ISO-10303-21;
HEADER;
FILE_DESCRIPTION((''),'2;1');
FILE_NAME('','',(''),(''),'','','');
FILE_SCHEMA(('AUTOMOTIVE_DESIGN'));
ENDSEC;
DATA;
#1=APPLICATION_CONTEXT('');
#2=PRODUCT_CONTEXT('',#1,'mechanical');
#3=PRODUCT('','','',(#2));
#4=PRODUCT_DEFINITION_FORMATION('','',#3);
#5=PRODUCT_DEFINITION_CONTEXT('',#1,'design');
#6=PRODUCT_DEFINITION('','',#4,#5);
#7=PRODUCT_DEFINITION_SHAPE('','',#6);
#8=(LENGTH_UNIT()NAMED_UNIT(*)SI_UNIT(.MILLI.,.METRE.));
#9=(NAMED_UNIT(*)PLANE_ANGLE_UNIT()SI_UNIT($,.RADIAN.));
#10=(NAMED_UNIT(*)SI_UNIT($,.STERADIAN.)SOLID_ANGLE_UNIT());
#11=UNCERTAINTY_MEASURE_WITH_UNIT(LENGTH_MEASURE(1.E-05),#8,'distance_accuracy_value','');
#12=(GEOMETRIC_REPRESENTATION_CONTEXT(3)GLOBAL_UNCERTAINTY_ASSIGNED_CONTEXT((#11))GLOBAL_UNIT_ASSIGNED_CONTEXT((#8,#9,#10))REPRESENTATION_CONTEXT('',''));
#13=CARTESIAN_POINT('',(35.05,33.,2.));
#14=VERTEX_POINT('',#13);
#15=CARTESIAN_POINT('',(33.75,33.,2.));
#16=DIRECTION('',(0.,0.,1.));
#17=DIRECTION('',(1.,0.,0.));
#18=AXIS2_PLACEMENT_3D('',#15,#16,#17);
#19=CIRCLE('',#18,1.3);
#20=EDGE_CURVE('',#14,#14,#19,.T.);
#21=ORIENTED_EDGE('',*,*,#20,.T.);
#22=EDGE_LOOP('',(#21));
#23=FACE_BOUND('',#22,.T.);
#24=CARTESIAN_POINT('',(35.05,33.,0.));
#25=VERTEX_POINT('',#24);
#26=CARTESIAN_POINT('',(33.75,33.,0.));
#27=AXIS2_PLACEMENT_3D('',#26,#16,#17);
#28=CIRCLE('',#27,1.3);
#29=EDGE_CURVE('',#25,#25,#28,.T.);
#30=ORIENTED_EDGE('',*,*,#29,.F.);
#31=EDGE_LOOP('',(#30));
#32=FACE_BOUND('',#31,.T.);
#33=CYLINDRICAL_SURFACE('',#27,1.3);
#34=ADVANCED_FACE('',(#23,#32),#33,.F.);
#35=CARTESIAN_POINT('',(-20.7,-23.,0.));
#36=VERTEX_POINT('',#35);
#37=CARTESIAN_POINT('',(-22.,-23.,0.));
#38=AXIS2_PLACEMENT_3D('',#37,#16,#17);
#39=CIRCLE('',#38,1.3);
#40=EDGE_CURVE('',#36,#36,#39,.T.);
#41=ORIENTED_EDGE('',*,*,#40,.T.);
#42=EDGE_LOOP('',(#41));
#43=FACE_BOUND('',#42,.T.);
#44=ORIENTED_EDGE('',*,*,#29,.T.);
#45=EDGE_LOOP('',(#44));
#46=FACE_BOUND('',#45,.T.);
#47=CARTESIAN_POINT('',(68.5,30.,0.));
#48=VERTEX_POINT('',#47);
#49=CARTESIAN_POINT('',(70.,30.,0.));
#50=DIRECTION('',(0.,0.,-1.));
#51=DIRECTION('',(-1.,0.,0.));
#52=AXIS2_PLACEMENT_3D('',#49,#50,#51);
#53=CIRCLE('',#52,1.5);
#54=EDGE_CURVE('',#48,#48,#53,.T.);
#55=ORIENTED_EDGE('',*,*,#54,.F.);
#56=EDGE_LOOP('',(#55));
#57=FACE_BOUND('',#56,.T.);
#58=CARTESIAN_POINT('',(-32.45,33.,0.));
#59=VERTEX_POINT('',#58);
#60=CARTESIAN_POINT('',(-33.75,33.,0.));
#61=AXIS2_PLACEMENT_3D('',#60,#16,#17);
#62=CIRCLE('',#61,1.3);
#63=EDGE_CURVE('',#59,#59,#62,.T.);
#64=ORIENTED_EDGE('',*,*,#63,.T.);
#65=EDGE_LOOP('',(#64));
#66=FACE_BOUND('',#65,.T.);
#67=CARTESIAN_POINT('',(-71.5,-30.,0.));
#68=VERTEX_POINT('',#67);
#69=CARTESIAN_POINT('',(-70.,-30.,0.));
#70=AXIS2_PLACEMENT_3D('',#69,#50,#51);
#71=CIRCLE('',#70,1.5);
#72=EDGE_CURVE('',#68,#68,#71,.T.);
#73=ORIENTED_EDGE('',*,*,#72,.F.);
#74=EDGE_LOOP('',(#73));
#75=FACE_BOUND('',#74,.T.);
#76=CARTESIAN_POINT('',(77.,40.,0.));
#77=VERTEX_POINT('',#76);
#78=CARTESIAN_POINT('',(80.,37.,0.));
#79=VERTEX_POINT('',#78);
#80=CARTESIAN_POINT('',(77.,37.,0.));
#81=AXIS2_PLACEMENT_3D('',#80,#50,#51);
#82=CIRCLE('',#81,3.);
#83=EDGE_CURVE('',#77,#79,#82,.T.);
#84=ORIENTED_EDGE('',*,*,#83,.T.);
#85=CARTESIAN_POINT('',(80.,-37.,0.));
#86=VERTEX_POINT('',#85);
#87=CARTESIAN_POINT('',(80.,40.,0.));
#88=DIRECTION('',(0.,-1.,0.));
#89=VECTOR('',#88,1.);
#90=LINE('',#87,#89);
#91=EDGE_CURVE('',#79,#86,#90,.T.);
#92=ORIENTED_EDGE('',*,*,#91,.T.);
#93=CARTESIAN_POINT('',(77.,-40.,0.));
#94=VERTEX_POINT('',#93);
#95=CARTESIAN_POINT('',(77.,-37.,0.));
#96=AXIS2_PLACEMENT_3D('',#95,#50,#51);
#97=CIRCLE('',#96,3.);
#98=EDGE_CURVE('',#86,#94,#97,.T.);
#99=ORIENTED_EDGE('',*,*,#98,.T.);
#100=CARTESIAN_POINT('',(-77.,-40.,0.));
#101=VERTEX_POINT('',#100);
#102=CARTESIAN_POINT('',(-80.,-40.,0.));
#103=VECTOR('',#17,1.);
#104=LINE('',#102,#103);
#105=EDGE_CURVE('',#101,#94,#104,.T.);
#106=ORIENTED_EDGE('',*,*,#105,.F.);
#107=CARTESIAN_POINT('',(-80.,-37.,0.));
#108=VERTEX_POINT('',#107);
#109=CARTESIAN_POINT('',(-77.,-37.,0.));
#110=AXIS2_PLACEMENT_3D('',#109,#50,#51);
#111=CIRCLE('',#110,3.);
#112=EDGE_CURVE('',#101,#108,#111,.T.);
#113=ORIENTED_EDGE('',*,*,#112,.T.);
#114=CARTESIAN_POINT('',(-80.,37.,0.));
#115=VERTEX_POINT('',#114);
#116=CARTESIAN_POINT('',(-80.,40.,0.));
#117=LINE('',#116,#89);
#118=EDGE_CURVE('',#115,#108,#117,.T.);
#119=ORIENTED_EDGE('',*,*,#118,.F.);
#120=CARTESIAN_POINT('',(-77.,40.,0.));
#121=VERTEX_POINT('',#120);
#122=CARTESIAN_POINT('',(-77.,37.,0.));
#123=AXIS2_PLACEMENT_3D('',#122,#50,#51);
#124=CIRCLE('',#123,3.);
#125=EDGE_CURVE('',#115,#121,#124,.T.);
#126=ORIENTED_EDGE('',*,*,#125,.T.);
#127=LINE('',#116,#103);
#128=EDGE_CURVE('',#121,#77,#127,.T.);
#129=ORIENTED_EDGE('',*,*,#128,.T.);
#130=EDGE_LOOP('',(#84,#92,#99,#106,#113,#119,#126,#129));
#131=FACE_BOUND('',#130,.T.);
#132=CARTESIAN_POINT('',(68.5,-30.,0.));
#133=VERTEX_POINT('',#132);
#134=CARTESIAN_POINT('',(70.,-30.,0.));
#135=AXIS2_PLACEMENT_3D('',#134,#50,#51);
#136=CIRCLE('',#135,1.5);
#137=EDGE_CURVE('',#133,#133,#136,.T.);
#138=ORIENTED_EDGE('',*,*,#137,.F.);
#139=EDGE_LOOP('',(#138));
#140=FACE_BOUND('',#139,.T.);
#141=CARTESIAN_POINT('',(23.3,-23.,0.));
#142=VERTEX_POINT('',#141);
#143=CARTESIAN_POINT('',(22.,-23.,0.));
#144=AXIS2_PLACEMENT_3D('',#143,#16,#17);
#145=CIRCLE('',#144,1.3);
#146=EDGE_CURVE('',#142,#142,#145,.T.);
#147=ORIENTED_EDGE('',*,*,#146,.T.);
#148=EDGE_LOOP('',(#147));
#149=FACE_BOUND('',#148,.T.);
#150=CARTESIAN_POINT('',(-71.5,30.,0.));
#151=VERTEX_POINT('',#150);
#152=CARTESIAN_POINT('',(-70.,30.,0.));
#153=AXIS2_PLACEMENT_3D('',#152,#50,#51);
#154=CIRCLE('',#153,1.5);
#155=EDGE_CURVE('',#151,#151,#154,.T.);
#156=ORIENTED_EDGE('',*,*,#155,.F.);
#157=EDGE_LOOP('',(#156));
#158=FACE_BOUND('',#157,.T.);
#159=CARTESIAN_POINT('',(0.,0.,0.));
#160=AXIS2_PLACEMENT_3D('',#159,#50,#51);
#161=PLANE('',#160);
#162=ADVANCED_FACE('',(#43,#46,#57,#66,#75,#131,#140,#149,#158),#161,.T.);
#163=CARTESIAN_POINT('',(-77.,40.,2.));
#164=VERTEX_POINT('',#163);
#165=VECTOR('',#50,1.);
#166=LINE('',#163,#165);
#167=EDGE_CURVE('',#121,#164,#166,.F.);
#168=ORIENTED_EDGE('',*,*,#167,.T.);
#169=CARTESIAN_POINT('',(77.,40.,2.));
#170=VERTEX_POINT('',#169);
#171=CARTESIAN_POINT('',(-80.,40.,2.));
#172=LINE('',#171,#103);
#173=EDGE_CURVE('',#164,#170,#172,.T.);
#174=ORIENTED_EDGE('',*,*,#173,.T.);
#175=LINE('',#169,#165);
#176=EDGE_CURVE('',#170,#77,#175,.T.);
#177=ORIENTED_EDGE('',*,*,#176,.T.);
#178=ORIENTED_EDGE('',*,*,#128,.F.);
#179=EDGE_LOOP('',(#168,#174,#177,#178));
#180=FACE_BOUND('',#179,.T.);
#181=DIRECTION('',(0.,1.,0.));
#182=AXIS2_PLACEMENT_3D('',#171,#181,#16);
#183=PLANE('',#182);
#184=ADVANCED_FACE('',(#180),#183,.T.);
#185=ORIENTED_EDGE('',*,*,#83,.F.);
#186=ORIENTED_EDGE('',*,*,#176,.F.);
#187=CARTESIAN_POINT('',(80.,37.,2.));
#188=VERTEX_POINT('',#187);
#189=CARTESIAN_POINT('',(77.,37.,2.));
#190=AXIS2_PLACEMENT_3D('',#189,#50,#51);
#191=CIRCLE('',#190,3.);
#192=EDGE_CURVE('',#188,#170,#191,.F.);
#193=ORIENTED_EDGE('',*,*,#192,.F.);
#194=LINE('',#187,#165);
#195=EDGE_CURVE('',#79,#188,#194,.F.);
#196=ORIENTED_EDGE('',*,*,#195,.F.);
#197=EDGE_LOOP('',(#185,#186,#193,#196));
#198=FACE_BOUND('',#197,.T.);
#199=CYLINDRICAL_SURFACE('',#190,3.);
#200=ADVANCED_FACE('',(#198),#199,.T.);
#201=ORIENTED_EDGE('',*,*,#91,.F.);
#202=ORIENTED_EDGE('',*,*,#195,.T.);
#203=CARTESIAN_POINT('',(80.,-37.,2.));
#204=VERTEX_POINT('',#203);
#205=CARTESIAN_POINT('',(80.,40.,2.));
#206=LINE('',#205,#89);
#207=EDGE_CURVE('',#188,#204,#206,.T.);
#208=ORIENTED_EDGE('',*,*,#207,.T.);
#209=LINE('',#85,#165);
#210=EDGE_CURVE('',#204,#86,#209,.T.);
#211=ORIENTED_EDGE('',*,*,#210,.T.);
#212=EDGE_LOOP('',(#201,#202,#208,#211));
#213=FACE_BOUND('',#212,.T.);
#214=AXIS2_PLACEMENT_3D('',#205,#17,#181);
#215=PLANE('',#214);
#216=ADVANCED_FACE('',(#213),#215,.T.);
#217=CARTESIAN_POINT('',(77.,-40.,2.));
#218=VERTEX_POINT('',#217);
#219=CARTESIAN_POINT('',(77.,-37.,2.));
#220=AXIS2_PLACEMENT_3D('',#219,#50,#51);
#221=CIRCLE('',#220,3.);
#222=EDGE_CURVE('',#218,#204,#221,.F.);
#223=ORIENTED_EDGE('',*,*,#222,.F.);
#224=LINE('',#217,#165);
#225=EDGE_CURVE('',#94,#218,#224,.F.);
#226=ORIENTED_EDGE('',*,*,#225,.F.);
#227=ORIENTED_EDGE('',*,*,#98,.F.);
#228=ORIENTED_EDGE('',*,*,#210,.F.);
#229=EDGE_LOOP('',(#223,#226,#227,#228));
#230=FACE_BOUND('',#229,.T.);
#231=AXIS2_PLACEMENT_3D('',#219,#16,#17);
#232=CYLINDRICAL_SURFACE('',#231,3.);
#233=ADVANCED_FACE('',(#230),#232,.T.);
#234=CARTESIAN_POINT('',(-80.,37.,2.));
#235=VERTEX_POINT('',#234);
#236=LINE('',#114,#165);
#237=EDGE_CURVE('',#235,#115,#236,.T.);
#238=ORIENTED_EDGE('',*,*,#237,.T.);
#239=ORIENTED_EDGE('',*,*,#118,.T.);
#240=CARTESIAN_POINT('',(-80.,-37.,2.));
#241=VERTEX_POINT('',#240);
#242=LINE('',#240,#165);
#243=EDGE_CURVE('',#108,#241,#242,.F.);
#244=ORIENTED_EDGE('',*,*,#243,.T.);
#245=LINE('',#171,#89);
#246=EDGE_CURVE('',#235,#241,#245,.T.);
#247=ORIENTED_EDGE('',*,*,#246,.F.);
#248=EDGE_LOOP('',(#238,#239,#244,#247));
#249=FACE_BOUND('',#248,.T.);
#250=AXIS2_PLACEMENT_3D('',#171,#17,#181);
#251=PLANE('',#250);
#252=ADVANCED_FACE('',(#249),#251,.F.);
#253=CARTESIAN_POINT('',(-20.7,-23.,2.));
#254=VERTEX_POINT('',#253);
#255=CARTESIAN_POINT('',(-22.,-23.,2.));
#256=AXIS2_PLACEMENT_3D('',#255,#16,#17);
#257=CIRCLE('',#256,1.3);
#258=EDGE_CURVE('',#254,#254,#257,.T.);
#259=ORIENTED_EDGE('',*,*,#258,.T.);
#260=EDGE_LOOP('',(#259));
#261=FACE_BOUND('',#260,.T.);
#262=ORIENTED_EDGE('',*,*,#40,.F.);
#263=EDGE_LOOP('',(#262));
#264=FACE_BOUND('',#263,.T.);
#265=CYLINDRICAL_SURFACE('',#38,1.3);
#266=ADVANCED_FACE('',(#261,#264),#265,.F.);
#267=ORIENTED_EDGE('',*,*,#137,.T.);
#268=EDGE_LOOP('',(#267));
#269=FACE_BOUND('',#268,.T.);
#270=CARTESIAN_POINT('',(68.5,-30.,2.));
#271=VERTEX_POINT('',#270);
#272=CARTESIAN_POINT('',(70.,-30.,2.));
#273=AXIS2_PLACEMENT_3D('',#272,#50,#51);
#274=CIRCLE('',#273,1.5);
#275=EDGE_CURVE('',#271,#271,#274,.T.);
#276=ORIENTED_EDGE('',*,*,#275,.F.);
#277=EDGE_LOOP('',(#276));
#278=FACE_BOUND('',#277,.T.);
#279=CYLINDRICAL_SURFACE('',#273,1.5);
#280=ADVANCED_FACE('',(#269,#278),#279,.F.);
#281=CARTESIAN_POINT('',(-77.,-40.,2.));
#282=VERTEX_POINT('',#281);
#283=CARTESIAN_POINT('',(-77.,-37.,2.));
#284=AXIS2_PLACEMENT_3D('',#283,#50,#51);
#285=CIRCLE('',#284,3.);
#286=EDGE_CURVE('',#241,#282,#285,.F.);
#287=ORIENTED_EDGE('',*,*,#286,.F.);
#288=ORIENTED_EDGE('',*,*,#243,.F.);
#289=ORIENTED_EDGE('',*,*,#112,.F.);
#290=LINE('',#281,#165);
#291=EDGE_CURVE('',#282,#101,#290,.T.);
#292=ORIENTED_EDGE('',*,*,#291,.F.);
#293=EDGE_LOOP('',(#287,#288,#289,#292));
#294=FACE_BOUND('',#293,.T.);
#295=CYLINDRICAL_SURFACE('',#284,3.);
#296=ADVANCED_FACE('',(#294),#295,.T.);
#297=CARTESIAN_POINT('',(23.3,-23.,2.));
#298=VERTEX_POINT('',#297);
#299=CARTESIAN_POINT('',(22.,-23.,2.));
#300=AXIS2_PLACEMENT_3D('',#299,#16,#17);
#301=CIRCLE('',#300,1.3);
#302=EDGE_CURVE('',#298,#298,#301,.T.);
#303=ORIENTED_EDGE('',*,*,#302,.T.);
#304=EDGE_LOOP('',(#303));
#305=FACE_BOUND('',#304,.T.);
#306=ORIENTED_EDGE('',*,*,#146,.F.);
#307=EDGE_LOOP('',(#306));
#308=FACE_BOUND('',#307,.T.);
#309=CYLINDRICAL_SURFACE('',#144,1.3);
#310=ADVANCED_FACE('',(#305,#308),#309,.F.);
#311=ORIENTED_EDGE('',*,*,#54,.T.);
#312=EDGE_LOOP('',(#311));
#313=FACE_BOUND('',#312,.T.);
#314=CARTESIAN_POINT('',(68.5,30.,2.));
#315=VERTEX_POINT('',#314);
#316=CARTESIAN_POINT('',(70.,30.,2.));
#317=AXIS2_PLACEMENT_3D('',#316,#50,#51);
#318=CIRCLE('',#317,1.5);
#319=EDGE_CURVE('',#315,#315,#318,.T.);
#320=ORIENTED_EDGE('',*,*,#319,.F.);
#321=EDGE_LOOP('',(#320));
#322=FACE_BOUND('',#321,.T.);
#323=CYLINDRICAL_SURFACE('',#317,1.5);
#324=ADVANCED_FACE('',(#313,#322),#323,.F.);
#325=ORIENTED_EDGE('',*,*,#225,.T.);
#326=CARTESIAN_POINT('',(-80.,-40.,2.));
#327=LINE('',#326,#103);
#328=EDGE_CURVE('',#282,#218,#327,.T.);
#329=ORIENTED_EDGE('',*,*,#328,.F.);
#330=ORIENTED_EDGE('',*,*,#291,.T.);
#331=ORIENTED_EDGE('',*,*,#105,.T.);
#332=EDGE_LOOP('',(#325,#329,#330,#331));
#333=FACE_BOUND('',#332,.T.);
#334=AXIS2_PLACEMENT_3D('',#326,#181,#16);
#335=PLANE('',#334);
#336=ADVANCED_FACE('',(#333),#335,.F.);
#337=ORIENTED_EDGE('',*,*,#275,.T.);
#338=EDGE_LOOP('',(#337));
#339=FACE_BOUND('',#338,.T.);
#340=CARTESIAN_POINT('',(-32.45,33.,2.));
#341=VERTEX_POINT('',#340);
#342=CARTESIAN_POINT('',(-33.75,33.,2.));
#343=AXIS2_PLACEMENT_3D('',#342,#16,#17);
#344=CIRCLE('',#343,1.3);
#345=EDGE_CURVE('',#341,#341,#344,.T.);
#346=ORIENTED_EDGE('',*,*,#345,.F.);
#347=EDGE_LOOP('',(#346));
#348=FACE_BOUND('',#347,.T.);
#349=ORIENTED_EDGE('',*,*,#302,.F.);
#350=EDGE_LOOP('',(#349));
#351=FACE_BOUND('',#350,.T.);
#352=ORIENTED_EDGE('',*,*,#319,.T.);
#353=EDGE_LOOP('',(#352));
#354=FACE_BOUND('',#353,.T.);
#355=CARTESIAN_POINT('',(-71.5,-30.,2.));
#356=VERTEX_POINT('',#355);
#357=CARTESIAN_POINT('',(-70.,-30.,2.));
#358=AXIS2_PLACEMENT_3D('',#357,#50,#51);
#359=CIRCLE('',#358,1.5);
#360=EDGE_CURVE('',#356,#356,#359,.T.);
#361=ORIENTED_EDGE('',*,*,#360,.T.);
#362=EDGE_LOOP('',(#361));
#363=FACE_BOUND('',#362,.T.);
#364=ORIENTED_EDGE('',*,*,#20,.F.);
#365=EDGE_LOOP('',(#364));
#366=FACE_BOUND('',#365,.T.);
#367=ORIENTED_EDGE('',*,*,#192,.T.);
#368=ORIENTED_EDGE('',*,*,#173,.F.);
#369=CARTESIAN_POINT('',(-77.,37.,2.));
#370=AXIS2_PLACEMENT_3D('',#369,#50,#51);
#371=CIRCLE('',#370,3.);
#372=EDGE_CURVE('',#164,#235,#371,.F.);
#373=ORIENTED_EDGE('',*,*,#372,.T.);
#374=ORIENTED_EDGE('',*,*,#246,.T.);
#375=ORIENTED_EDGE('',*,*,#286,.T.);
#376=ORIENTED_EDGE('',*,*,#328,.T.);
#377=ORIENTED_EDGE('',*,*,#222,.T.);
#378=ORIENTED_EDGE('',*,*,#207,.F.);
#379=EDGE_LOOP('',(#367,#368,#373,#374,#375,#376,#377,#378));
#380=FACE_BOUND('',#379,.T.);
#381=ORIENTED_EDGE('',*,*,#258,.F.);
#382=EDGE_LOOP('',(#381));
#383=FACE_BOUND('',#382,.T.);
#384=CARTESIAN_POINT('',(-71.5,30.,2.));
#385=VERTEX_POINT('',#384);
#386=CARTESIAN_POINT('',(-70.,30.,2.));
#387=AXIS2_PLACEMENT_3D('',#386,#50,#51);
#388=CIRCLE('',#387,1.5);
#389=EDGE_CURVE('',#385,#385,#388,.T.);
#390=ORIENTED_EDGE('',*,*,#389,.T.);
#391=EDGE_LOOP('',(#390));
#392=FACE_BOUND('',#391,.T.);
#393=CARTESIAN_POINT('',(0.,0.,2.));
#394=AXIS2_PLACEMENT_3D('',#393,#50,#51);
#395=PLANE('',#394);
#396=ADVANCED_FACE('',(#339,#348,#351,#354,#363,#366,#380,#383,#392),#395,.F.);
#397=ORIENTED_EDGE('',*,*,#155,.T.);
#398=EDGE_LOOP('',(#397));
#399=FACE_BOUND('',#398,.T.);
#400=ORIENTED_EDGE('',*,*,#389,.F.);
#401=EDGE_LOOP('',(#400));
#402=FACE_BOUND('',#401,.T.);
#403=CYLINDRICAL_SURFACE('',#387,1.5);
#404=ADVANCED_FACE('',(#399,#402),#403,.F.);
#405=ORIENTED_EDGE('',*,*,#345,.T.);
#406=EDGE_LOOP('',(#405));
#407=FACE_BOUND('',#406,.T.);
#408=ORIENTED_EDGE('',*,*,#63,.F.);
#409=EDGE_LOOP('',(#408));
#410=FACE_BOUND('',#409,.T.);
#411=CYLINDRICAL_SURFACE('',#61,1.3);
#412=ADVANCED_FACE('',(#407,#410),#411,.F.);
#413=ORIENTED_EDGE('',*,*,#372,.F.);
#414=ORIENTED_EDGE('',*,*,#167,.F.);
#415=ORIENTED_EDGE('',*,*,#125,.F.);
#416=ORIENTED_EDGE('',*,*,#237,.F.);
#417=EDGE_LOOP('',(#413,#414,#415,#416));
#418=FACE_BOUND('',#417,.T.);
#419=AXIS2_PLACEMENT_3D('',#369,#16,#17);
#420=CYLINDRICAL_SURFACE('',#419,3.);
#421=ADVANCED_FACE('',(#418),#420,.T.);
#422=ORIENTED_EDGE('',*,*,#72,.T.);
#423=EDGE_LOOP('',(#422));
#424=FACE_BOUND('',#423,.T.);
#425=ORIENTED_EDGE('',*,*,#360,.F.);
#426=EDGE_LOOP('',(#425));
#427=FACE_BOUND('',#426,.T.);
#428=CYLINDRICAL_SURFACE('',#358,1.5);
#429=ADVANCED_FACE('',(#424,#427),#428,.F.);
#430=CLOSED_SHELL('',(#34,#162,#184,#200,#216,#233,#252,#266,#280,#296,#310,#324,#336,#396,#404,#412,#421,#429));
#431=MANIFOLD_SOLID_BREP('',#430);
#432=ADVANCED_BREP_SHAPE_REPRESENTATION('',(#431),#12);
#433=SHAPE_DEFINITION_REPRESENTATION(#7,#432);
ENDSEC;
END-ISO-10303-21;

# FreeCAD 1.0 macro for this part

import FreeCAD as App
import Part
import Sketcher


def edges_at(feature, points):
    """Names of the edges that pass closest to the given points."""
    edges = feature.Shape.Edges
    near = lambda p: min(range(len(edges)), key=lambda i: edges[i].distToShape(Part.Vertex(*p))[0])
    return sorted({f"Edge{near(p) + 1}" for p in points})


def add_polygon(sketch, points):
    """Adds a closed chain of lines whose ends are joined by coincident constraints."""
    first, n = sketch.GeometryCount, len(points)
    for a, b in zip(points, points[1:] + points[:1]):
        sketch.addGeometry(Part.LineSegment(App.Vector(*a, 0), App.Vector(*b, 0)), False)
    for i in range(n):
        sketch.addConstraint(Sketcher.Constraint("Coincident", first + i, 2, first + (i + 1) % n, 1))

doc = App.newDocument("Part")
body = doc.addObject("PartDesign::Body", "Body")

sketch1 = body.newObject("Sketcher::SketchObject", "Sketch")
sketch1.AttachmentSupport = (doc.getObject("XY_Plane"), [""])
sketch1.MapMode = "FlatFace"
add_polygon(sketch1, [(-80, 40), (-80, -40), (80, -40), (80, 40)])
sketch1.addConstraint([
    Sketcher.Constraint("Vertical", 0),
    Sketcher.Constraint("Horizontal", 1),
    Sketcher.Constraint("Vertical", 2),
    Sketcher.Constraint("Horizontal", 3),
    Sketcher.Constraint("Symmetric", 0, 2, 2, 2, -1, 1),
    Sketcher.Constraint("DistanceX", 1, 1, 1, 2, 160.0),
    Sketcher.Constraint("DistanceY", 0, 2, 0, 1, 80.0),
])
pad1 = body.newObject("PartDesign::Pad", "Pad")
pad1.Profile = sketch1
pad1.Length = 2

sketch2 = body.newObject("Sketcher::SketchObject", "Sketch001")
sketch2.AttachmentSupport = (doc.getObject("XY_Plane"), [""])
sketch2.MapMode = "FlatFace"
sketch2.AttachmentOffset = App.Placement(App.Vector(0, 0, 2), App.Rotation())
sketch2.addGeometry([
    Part.Circle(App.Vector(-33.8, 33, 0), App.Vector(0, 0, 1), 1.3),
    Part.Circle(App.Vector(33.8, 33, 0), App.Vector(0, 0, 1), 1.3),
    Part.Circle(App.Vector(-22, -23, 0), App.Vector(0, 0, 1), 1.3),
    Part.Circle(App.Vector(22, -23, 0), App.Vector(0, 0, 1), 1.3),
], False)
sketch2.addConstraint([
    Sketcher.Constraint("Equal", 0, 1),
    Sketcher.Constraint("Equal", 1, 2),
    Sketcher.Constraint("Equal", 2, 3),
    Sketcher.Constraint("Symmetric", 0, 3, 1, 3, -2),
    Sketcher.Constraint("Symmetric", 2, 3, 3, 3, -2),
    Sketcher.Constraint("Diameter", 0, 2.6),
    Sketcher.Constraint("DistanceY", -1, 1, 0, 3, 33.0),
    Sketcher.Constraint("DistanceX", 2, 3, -1, 1, 22.0),
    Sketcher.Constraint("DistanceY", 2, 3, -1, 1, 23.0),
    Sketcher.Constraint("DistanceX", 0, 3, 1, 3, 67.5),
])
pocket1 = body.newObject("PartDesign::Pocket", "Pocket")
pocket1.Profile = sketch2
pocket1.Type = "ThroughAll"

sketch3 = body.newObject("Sketcher::SketchObject", "Sketch002")
sketch3.AttachmentSupport = (doc.getObject("XY_Plane"), [""])
sketch3.MapMode = "FlatFace"
sketch3.addGeometry([
    Part.Circle(App.Vector(70, -30, 0), App.Vector(0, 0, 1), 1.5),
    Part.Circle(App.Vector(70, 30, 0), App.Vector(0, 0, 1), 1.5),
    Part.Circle(App.Vector(-70, 30, 0), App.Vector(0, 0, 1), 1.5),
    Part.Circle(App.Vector(-70, -30, 0), App.Vector(0, 0, 1), 1.5),
], False)
sketch3.addConstraint([
    Sketcher.Constraint("Equal", 0, 1),
    Sketcher.Constraint("Equal", 1, 2),
    Sketcher.Constraint("Equal", 2, 3),
    Sketcher.Constraint("Symmetric", 0, 3, 2, 3, -1, 1),
    Sketcher.Constraint("Symmetric", 1, 3, 3, 3, -1, 1),
    Sketcher.Constraint("Symmetric", 1, 3, 2, 3, -2),
    Sketcher.Constraint("Diameter", 0, 3.0),
    Sketcher.Constraint("DistanceX", -1, 1, 0, 3, 70.0),
    Sketcher.Constraint("DistanceY", 0, 3, -1, 1, 30.0),
])
pocket2 = body.newObject("PartDesign::Pocket", "Pocket001")
pocket2.Profile = sketch3
pocket2.Type = "ThroughAll"
pocket2.Reversed = True
doc.recompute()

fillet = body.newObject("PartDesign::Fillet", "Fillet")
fillet.Base = (pocket2, edges_at(pocket2, [
    (-80, -40, 1),
    (-80, 40, 1),
    (80, 40, 1),
    (80, -40, 1),
]))
fillet.Radius = 3

doc.recompute()
